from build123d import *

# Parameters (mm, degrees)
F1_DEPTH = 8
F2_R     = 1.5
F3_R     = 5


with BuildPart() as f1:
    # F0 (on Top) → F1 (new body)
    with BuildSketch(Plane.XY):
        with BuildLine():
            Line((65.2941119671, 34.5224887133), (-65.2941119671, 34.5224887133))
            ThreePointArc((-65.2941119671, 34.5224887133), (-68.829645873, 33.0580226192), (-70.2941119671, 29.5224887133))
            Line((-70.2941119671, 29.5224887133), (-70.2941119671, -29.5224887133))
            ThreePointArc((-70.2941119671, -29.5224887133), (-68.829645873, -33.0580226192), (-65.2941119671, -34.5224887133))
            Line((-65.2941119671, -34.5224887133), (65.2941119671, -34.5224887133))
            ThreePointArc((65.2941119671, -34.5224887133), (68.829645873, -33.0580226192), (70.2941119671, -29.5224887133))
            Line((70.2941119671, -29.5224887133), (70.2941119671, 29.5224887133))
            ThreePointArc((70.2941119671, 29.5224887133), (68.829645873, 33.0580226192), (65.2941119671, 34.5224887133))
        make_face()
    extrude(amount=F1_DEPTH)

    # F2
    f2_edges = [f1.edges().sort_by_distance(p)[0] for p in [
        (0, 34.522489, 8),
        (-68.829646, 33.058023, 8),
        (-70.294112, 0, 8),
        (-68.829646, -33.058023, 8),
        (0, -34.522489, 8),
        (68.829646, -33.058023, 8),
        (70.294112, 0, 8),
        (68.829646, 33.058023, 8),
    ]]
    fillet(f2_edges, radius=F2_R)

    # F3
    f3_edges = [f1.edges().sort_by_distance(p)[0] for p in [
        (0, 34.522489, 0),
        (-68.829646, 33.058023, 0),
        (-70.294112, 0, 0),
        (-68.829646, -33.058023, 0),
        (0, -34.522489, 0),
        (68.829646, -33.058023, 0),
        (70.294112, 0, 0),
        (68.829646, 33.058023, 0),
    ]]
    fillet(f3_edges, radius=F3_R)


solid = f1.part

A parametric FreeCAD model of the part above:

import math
import FreeCAD as App
import Part
import Sketcher

V = App.Vector
Q = App.Units.Quantity


def edges_at(feature, points):
    """Names of the edges that pass closest to the given points."""
    edges = feature.Shape.Edges
    near = lambda p: min(range(len(edges)), key=lambda i: edges[i].distToShape(Part.Vertex(*p))[0])
    return sorted({f"Edge{near(p) + 1}" for p in points})

doc = App.newDocument("Part")
body = doc.addObject("PartDesign::Body", "Body")

# Sketch on XY plane
sketch1 = body.newObject("Sketcher::SketchObject", "Sketch")
sketch1.AttachmentSupport = (doc.getObject("XY_Plane"), [""])
sketch1.MapMode = "FlatFace"
sketch1.addGeometry([
    Part.LineSegment(V(65.294112, 34.522489, 0), V(-65.294112, 34.522489, 0)),  # 0
    Part.ArcOfCircle(Part.Circle(V(-65.294112, 29.522489, 0), V(0, 0, 1), 5), math.radians(90), math.radians(180)),  # 1
    Part.LineSegment(V(-70.294112, 29.522489, 0), V(-70.294112, -29.522489, 0)),  # 2
    Part.ArcOfCircle(Part.Circle(V(-65.294112, -29.522489, 0), V(0, 0, 1), 5), math.radians(180), math.radians(270)),  # 3
    Part.LineSegment(V(-65.294112, -34.522489, 0), V(65.294112, -34.522489, 0)),  # 4
    Part.ArcOfCircle(Part.Circle(V(65.294112, -29.522489, 0), V(0, 0, 1), 5), math.radians(-90), math.radians(0)),  # 5
    Part.LineSegment(V(70.294112, -29.522489, 0), V(70.294112, 29.522489, 0)),  # 6
    Part.ArcOfCircle(Part.Circle(V(65.294112, 29.522489, 0), V(0, 0, 1), 5), math.radians(0), math.radians(90)),  # 7
], False)
sketch1.addConstraint([
    Sketcher.Constraint("Tangent", 0, 2, 1, 1),
    Sketcher.Constraint("Tangent", 1, 2, 2, 1),
    Sketcher.Constraint("Tangent", 2, 2, 3, 1),
    Sketcher.Constraint("Tangent", 3, 2, 4, 1),
    Sketcher.Constraint("Tangent", 4, 2, 5, 1),
    Sketcher.Constraint("Tangent", 5, 2, 6, 1),
    Sketcher.Constraint("Tangent", 6, 2, 7, 1),
    Sketcher.Constraint("Tangent", 7, 2, 0, 1),
    Sketcher.Constraint("Horizontal", 0),
    Sketcher.Constraint("Vertical", 2),
    Sketcher.Constraint("Horizontal", 4),
    Sketcher.Constraint("Vertical", 6),
    Sketcher.Constraint("Equal", 1, 3),
    Sketcher.Constraint("Equal", 3, 5),
    Sketcher.Constraint("Equal", 5, 7),
    Sketcher.Constraint("Symmetric", 1, 3, 5, 3, -1, 1),
    Sketcher.Constraint("Radius", 1, Q("5 mm")),
    Sketcher.Constraint("DistanceX", 0, 2, 0, 1, Q("130.588224 mm")),
    Sketcher.Constraint("DistanceY", 2, 2, 2, 1, Q("59.044977 mm")),
])
pad1 = body.newObject("PartDesign::Pad", "Pad")
pad1.Profile = sketch1
pad1.Length = 8
doc.recompute()

fillet = body.newObject("PartDesign::Fillet", "Fillet")
fillet.Base = (pad1, edges_at(pad1, [
    (0, 34.522, 8),
    (-68.83, 33.058, 8),
    (-70.294, 0, 8),
    (-68.83, -33.058, 8),
    (0, -34.522, 8),
    (68.83, -33.058, 8),
    (70.294, 0, 8),
    (68.83, 33.058, 8),
]))
fillet.Radius = 1.5
doc.recompute()

fillet2 = body.newObject("PartDesign::Fillet", "Fillet001")
fillet2.Base = (fillet, edges_at(fillet, [
    (0, 34.522, 0),
    (-68.83, 33.058, 0),
    (-70.294, 0, 0),
    (-68.83, -33.058, 0),
    (0, -34.522, 0),
    (68.83, -33.058, 0),
    (70.294, 0, 0),
    (68.83, 33.058, 0),
]))
fillet2.Radius = 5

doc.recompute()
